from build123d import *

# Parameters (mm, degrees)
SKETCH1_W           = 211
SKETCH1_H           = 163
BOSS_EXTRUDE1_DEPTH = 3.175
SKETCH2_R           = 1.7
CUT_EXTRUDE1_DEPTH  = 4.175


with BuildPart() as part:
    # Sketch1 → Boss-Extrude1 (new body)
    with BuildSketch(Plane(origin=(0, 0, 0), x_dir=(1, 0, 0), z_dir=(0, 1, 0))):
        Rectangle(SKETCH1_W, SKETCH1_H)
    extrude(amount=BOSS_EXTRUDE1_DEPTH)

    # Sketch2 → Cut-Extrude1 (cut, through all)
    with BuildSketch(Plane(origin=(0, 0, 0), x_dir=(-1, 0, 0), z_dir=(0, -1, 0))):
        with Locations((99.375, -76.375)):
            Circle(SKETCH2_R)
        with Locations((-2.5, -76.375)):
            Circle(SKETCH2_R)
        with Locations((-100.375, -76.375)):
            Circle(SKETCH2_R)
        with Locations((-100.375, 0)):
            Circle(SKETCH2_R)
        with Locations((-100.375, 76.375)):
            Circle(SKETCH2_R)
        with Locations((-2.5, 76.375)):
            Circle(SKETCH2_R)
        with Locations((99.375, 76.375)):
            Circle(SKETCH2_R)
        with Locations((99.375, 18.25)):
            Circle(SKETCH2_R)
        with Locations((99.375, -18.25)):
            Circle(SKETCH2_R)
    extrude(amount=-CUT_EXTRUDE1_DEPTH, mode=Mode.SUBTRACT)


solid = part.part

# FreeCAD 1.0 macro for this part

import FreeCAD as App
import Part
import Sketcher

V = App.Vector
Q = App.Units.Quantity

doc = App.newDocument("Part")
body = doc.addObject("PartDesign::Body", "Body")

# Sketch on XZ plane
sketch1 = body.newObject("Sketcher::SketchObject", "Sketch")
sketch1.AttachmentSupport = (doc.getObject("XZ_Plane"), [""])
sketch1.MapMode = "FlatFace"
sketch1.addGeometry([
    Part.LineSegment(V(-106, -82, 0), V(-106, 82, 0)),
    Part.LineSegment(V(-106, 82, 0), V(106, 82, 0)),
    Part.LineSegment(V(106, 82, 0), V(106, -82, 0)),
    Part.LineSegment(V(106, -82, 0), V(-106, -82, 0)),
], False)
sketch1.addConstraint([
    Sketcher.Constraint("Coincident", 0, 2, 1, 1),
    Sketcher.Constraint("Coincident", 1, 2, 2, 1),
    Sketcher.Constraint("Coincident", 2, 2, 3, 1),
    Sketcher.Constraint("Coincident", 3, 2, 0, 1),
    Sketcher.Constraint("Vertical", 0),
    Sketcher.Constraint("Horizontal", 1),
    Sketcher.Constraint("Vertical", 2),
    Sketcher.Constraint("Horizontal", 3),
    Sketcher.Constraint("Symmetric", 0, 2, 2, 2, -1, 1),
    Sketcher.Constraint("DistanceX", 1, 1, 1, 2, Q("211 mm")),
    Sketcher.Constraint("DistanceY", 0, 1, 0, 2, Q("163 mm")),
])
pad1 = body.newObject("PartDesign::Pad", "Pad")
pad1.Profile = sketch1
pad1.Length = 3.175
pad1.Reversed = True

# Sketch on XZ plane
sketch2 = body.newObject("Sketcher::SketchObject", "Sketch001")
sketch2.AttachmentSupport = (doc.getObject("XZ_Plane"), [""])
sketch2.MapMode = "FlatFace"
sketch2.addGeometry([
    Part.Circle(V(-99.4, 76.4, 0), V(0, 0, 1), 1.7),  # 0
    Part.Circle(V(2.5, 76.4, 0), V(0, 0, 1), 1.7),  # 1
    Part.Circle(V(100.4, 76.4, 0), V(0, 0, 1), 1.7),  # 2
    Part.Circle(V(100.4, 0, 0), V(0, 0, 1), 1.7),  # 3
    Part.Circle(V(100.4, -76.4, 0), V(0, 0, 1), 1.7),  # 4
    Part.Circle(V(2.5, -76.4, 0), V(0, 0, 1), 1.7),  # 5
    Part.Circle(V(-99.4, -76.4, 0), V(0, 0, 1), 1.7),  # 6
    Part.Circle(V(-99.4, -18.2, 0), V(0, 0, 1), 1.7),  # 7
    Part.Circle(V(-99.4, 18.2, 0), V(0, 0, 1), 1.7),  # 8
], False)
sketch2.addConstraint([
    Sketcher.Constraint("Equal", 0, 1),
    Sketcher.Constraint("Equal", 1, 2),
    Sketcher.Constraint("Equal", 2, 3),
    Sketcher.Constraint("Equal", 3, 4),
    Sketcher.Constraint("Equal", 4, 5),
    Sketcher.Constraint("Equal", 5, 6),
    Sketcher.Constraint("Equal", 6, 7),
    Sketcher.Constraint("Equal", 7, 8),
    Sketcher.Constraint("Symmetric", 2, 3, 4, 3, -1),
    Sketcher.Constraint("Symmetric", 1, 3, 5, 3, -1),
    Sketcher.Constraint("Symmetric", 0, 3, 6, 3, -1),
    Sketcher.Constraint("Symmetric", 7, 3, 8, 3, -1),
    Sketcher.Constraint("PointOnObject", 3, 3, -1),
    Sketcher.Constraint("Horizontal", 0, 3, 1, 3),
    Sketcher.Constraint("Horizontal", 1, 3, 2, 3),
    Sketcher.Constraint("Vertical", 2, 3, 3, 3),
    Sketcher.Constraint("Vertical", 6, 3, 7, 3),
    Sketcher.Constraint("Diameter", 0, Q("3.4 mm")),
    Sketcher.Constraint("DistanceX", -1, 1, 1, 3, Q("2.5 mm")),
    Sketcher.Constraint("DistanceY", 7, 3, 8, 3, Q("36.5 mm")),
    Sketcher.Constraint("DistanceX", 0, 3, 2, 3, Q("199.75 mm")),
    Sketcher.Constraint("DistanceY", 4, 3, 2, 3, Q("152.75 mm")),
    Sketcher.Constraint("DistanceX", 0, 3, -1, 1, Q("99.375 mm")),
])
pocket1 = body.newObject("PartDesign::Pocket", "Pocket")
pocket1.Profile = sketch2
pocket1.Type = "ThroughAll"

doc.recompute()
